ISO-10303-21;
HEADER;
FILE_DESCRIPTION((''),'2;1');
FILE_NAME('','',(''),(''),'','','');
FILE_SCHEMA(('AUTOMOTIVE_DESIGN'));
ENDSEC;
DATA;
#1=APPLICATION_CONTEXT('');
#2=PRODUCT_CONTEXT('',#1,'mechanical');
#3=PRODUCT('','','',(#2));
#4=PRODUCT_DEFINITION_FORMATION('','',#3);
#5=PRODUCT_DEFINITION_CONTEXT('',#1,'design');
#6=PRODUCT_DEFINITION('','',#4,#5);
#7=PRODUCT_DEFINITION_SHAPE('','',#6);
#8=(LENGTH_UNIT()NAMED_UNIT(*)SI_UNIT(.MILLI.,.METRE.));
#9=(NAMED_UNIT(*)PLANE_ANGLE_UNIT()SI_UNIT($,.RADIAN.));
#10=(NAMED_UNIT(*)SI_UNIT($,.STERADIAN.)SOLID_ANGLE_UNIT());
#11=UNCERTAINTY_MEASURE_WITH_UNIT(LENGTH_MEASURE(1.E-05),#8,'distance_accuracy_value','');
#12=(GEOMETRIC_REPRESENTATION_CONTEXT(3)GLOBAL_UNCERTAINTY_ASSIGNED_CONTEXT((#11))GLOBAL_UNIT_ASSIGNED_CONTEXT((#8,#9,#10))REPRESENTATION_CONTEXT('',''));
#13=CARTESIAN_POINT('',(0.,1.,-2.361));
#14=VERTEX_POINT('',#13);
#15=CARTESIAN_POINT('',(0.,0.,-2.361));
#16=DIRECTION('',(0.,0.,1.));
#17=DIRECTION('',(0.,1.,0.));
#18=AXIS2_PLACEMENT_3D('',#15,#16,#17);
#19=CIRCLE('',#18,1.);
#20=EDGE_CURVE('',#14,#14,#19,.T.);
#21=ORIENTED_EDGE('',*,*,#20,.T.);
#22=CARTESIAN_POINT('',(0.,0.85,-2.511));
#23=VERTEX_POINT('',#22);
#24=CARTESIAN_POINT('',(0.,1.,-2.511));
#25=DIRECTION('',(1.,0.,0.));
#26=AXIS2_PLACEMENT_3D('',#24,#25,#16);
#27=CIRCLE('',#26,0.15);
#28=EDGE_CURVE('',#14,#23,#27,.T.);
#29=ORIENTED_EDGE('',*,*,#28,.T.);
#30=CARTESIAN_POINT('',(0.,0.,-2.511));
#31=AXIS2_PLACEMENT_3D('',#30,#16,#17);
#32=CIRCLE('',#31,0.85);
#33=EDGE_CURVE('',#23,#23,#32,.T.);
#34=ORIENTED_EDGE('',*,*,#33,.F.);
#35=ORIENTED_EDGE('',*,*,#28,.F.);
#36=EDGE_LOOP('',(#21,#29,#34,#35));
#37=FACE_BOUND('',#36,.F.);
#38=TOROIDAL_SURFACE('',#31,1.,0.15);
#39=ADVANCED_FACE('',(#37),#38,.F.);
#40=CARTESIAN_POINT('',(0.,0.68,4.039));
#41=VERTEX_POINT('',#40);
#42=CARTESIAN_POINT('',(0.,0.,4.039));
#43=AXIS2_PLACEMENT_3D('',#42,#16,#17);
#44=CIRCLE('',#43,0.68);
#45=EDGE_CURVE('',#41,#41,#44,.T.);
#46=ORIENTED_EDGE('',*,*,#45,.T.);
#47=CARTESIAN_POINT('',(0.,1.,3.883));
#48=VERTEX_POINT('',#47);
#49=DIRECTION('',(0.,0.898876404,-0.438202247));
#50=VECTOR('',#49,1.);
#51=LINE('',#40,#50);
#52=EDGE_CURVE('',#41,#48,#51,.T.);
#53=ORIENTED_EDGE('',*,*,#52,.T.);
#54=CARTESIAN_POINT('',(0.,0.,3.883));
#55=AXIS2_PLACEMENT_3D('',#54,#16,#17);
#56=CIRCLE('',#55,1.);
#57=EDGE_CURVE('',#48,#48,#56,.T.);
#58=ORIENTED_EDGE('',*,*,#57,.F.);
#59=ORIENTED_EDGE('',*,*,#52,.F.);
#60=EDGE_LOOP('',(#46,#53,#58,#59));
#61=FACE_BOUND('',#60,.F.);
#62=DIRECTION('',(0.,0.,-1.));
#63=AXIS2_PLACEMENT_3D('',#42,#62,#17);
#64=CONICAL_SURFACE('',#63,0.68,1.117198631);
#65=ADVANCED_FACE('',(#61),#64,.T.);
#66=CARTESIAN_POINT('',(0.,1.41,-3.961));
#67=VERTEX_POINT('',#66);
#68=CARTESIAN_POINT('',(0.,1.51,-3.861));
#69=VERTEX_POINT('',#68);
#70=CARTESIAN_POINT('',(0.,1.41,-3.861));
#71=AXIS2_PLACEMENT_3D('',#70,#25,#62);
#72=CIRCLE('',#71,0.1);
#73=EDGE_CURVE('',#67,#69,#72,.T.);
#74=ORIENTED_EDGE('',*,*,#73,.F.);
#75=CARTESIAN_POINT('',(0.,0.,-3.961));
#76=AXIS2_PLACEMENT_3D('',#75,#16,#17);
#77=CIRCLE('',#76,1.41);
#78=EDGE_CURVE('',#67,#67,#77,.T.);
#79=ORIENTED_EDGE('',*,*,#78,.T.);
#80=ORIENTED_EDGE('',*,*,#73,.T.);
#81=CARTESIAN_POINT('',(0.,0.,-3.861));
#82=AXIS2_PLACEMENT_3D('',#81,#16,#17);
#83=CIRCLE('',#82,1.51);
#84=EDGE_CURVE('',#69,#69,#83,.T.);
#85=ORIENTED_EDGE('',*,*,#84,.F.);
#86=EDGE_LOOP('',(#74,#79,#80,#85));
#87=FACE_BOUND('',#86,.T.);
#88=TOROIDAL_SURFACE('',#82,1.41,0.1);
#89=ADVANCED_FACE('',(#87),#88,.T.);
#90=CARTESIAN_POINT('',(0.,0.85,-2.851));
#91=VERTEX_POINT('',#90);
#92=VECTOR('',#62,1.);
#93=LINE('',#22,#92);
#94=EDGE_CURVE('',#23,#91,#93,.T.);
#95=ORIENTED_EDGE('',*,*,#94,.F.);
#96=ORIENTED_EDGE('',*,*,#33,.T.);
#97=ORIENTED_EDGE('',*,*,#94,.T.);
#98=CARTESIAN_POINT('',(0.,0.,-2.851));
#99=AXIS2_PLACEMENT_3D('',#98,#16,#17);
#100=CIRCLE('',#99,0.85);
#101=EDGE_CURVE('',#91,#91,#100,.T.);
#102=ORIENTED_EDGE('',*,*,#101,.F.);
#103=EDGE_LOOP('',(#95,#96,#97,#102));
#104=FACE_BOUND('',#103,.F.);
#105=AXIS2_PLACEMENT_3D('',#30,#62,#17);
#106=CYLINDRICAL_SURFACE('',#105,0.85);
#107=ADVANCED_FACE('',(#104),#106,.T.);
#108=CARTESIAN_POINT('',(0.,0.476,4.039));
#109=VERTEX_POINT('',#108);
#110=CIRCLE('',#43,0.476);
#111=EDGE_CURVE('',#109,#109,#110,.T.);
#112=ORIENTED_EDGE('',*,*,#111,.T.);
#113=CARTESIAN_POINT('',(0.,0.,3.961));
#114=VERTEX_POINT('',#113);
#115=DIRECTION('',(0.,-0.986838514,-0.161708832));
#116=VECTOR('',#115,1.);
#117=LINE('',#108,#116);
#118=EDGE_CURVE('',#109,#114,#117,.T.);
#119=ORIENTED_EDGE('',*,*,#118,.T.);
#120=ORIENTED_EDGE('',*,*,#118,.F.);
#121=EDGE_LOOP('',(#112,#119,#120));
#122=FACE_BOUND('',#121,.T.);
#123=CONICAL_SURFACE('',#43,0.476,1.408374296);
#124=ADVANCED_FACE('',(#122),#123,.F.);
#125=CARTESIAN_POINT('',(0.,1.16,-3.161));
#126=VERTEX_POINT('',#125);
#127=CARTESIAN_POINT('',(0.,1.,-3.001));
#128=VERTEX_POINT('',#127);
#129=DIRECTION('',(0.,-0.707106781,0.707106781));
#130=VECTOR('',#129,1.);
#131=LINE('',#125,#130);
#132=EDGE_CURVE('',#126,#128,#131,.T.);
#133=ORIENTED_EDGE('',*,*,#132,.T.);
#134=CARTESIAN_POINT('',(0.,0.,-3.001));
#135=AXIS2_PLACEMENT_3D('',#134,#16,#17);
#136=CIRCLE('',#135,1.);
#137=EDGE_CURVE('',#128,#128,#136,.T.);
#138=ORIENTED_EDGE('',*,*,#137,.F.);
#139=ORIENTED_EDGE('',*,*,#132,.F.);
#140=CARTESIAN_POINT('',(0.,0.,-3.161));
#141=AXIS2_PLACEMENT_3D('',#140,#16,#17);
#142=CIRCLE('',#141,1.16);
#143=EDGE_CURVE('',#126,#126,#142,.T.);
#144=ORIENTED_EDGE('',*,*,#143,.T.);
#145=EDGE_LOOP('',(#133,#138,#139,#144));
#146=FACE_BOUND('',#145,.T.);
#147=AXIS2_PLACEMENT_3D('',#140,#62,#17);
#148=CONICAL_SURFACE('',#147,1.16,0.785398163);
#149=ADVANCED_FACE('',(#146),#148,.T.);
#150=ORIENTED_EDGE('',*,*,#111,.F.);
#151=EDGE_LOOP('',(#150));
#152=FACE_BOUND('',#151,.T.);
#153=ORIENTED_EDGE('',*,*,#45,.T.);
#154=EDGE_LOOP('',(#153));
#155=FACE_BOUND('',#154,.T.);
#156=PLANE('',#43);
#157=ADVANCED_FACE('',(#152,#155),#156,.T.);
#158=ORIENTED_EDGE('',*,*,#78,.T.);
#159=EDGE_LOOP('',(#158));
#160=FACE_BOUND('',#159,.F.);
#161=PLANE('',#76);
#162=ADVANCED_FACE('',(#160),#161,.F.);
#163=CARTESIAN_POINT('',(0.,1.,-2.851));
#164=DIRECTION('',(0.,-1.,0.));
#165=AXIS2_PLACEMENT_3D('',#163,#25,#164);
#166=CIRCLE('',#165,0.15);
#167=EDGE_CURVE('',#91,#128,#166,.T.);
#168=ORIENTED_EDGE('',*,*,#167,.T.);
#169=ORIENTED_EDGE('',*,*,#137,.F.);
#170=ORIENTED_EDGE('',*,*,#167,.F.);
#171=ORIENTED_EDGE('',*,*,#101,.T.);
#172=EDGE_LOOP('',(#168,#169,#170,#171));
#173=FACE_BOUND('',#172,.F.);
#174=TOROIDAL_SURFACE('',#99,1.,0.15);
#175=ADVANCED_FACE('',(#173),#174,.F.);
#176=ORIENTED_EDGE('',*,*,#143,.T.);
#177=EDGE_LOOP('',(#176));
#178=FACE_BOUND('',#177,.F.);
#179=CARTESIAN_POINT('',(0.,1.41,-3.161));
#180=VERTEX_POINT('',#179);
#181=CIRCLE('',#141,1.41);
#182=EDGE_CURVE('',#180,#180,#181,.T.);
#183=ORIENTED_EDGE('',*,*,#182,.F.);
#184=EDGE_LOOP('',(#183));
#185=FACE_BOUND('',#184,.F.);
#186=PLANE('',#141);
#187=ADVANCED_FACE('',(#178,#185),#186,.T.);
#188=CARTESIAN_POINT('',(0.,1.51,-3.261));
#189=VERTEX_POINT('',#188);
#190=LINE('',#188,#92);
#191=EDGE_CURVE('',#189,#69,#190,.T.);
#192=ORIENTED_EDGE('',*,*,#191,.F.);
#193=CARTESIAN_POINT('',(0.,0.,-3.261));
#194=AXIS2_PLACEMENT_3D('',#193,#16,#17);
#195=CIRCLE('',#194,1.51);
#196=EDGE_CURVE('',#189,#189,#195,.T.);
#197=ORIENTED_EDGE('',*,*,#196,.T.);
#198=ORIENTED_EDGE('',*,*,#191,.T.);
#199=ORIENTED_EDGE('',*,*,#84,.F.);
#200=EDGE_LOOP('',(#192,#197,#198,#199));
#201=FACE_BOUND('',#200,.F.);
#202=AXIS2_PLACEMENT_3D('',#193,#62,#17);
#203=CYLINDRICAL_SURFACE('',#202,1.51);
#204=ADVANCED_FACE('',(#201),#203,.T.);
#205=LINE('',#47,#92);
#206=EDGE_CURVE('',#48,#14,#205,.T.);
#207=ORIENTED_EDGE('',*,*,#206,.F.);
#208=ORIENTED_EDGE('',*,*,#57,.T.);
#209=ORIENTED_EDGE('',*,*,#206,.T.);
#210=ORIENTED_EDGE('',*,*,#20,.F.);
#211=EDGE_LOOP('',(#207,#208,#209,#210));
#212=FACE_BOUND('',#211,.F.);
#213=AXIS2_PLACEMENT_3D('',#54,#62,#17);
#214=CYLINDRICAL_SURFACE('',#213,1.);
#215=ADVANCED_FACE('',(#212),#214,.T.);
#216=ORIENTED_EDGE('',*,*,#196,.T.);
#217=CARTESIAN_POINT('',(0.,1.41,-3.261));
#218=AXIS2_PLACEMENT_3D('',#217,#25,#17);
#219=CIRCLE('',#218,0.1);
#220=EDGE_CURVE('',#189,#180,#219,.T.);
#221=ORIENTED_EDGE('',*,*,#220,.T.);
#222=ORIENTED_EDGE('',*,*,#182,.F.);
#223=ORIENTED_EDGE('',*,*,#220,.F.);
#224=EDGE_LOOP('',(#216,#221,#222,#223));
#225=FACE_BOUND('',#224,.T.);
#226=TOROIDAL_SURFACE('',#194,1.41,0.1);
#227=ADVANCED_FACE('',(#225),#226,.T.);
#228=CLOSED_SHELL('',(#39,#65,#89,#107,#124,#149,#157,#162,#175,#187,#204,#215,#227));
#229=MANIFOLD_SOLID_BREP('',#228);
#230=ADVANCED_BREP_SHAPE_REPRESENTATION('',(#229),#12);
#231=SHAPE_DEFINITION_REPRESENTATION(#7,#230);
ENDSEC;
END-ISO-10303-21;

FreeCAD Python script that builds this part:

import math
import FreeCAD as App
import Part
import Sketcher

V = App.Vector
Q = App.Units.Quantity

doc = App.newDocument("Part")
body = doc.addObject("PartDesign::Body", "Body")

sketch1 = body.newObject("Sketcher::SketchObject", "Sketch")
sketch1.AttachmentSupport = (doc.getObject("YZ_Plane"), [""])
sketch1.MapMode = "FlatFace"
sketch1.addGeometry([
    Part.LineSegment(V(1, 3.883, 0), V(0.68, 4.039, 0)),
    Part.LineSegment(V(0.68, 4.039, 0), V(0.476, 4.039, 0)),
    Part.LineSegment(V(0.476, 4.039, 0), V(0, 3.961, 0)),
    Part.LineSegment(V(0, 3.961, 0), V(0, -3.961, 0)),
    Part.LineSegment(V(0, -3.961, 0), V(1.41, -3.961, 0)),
    Part.ArcOfCircle(Part.Circle(V(1.41, -3.861, 0), V(0, 0, 1), 0.1), math.radians(-90), math.radians(0)),
    Part.LineSegment(V(1.51, -3.861, 0), V(1.51, -3.261, 0)),
    Part.ArcOfCircle(Part.Circle(V(1.41, -3.261, 0), V(0, 0, 1), 0.1), math.radians(0), math.radians(90)),
    Part.LineSegment(V(1.41, -3.161, 0), V(1.16, -3.161, 0)),
    Part.LineSegment(V(1.16, -3.161, 0), V(1, -3.001, 0)),
    Part.ArcOfCircle(Part.Circle(V(1, -2.851, 0), V(0, 0, 1), 0.15), math.radians(180), math.radians(270)),
    Part.LineSegment(V(0.85, -2.851, 0), V(0.85, -2.511, 0)),
    Part.ArcOfCircle(Part.Circle(V(1, -2.511, 0), V(0, 0, 1), 0.15), math.radians(90), math.radians(180)),
    Part.LineSegment(V(1, -2.361, 0), V(1, 3.883, 0)),
], False)
sketch1.addConstraint([
    Sketcher.Constraint("Coincident", 0, 2, 1, 1),
    Sketcher.Constraint("Coincident", 1, 2, 2, 1),
    Sketcher.Constraint("Coincident", 2, 2, 3, 1),
    Sketcher.Constraint("Coincident", 3, 2, 4, 1),
    Sketcher.Constraint("Tangent", 4, 2, 5, 1),
    Sketcher.Constraint("Tangent", 5, 2, 6, 1),
    Sketcher.Constraint("Tangent", 6, 2, 7, 1),
    Sketcher.Constraint("Tangent", 7, 2, 8, 1),
    Sketcher.Constraint("Coincident", 8, 2, 9, 1),
    Sketcher.Constraint("Coincident", 9, 2, 10, 2),
    Sketcher.Constraint("Tangent", 10, 1, 11, 1),
    Sketcher.Constraint("Tangent", 11, 2, 12, 2),
    Sketcher.Constraint("Coincident", 12, 1, 13, 1),
    Sketcher.Constraint("Coincident", 13, 2, 0, 1),
    Sketcher.Constraint("Horizontal", 1),
    Sketcher.Constraint("Vertical", 3),
    Sketcher.Constraint("Horizontal", 4),
    Sketcher.Constraint("Vertical", 6),
    Sketcher.Constraint("Horizontal", 8),
    Sketcher.Constraint("Vertical", 11),
    Sketcher.Constraint("Vertical", 13),
    Sketcher.Constraint("Equal", 5, 7),
    Sketcher.Constraint("Equal", 10, 12),
    Sketcher.Constraint("Symmetric", 2, 2, 3, 2, -1, 1),
    Sketcher.Constraint("Vertical", 12, 3, 9, 2),
    Sketcher.Constraint("Vertical", 9, 2, 12, 1),
    Sketcher.Constraint("Radius", 5, 0.1),
    Sketcher.Constraint("Angle", 9, Q("135 deg")),
    Sketcher.Constraint("Radius", 10, 0.15),
    Sketcher.Constraint("DistanceY", 6, 1, 6, 2, 0.6),
    Sketcher.Constraint("DistanceX", -1, 1, 10, 3, 1.0),
    Sketcher.Constraint("DistanceY", 2, 2, 1, 2, 0.078),
    Sketcher.Constraint("DistanceY", 13, 2, 0, 2, 0.156),
    Sketcher.Constraint("DistanceX", 4, 1, 4, 2, 1.41),
    Sketcher.Constraint("DistanceX", 8, 2, 8, 1, 0.25),
    Sketcher.Constraint("DistanceY", 11, 1, 11, 2, 0.34),
    Sketcher.Constraint("Angle", 0, Q("154.0108 deg")),
    Sketcher.Constraint("DistanceY", 7, 3, 0, 2, 7.3),
    Sketcher.Constraint("DistanceX", 1, 2, 1, 1, 0.204),
])
revolution = body.newObject("PartDesign::Revolution", "Revolution")
revolution.Profile = sketch1
revolution.ReferenceAxis = (sketch1, ["V_Axis"])
revolution.Angle = 360

doc.recompute()
